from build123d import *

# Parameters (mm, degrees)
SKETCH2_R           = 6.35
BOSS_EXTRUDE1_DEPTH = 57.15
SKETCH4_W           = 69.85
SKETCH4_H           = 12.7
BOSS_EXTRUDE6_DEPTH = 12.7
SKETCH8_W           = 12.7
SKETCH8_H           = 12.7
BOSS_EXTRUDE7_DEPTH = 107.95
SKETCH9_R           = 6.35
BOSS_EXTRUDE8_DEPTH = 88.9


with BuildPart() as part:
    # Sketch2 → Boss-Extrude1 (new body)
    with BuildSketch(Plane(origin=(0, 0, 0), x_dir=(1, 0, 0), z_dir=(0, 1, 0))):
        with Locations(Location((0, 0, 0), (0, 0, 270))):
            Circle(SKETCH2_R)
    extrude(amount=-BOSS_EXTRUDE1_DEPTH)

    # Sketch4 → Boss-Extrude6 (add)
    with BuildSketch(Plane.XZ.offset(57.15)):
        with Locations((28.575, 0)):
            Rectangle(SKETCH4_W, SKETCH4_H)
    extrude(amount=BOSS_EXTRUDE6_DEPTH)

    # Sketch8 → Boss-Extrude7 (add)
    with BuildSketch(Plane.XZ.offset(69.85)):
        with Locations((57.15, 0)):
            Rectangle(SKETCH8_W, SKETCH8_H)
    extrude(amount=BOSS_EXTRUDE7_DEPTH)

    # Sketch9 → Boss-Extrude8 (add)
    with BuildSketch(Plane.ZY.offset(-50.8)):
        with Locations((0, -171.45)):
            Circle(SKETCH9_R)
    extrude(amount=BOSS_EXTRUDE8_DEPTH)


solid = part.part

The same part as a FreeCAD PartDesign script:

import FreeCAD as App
import Part
import Sketcher

V = App.Vector
Q = App.Units.Quantity


def add_polygon(sketch, points):
    """Adds a closed chain of lines whose ends are joined by coincident constraints."""
    first, n = sketch.GeometryCount, len(points)
    for a, b in zip(points, points[1:] + points[:1]):
        sketch.addGeometry(Part.LineSegment(App.Vector(*a, 0), App.Vector(*b, 0)), False)
    for i in range(n):
        sketch.addConstraint(Sketcher.Constraint("Coincident", first + i, 2, first + (i + 1) % n, 1))

doc = App.newDocument("Part")
body = doc.addObject("PartDesign::Body", "Body")

# Sketch on XZ plane
sketch1 = doc.addObject("Sketcher::SketchObject", "Sketch")
body.addObject(sketch1)
sketch1.AttachmentSupport = (doc.XZ_Plane, [""])
sketch1.MapMode = "FlatFace"
sketch1.addGeometry(Part.Circle(V(0, 0, 0), V(0, 0, 1), 6), False)
sketch1.addConstraint(Sketcher.Constraint("Coincident", 0, 3, -1, 1))
sketch1.addConstraint(Sketcher.Constraint("Diameter", 0, Q("0.5 in")))
pad1 = doc.addObject("PartDesign::Pad", "Pad")
body.addObject(pad1)
pad1.Profile = sketch1
pad1.Length = Q("2.25 in")

# Sketch on XZ plane
sketch2 = doc.addObject("Sketcher::SketchObject", "Sketch001")
body.addObject(sketch2)
sketch2.AttachmentSupport = (doc.XZ_Plane, [""])
sketch2.MapMode = "FlatFace"
sketch2.AttachmentOffset = App.Placement(V(0, 0, 2.25 * 25.4), App.Rotation())
add_polygon(sketch2, [(-6, 6), (-6, -6), (64, -6), (64, 6)])  # lines 0-3
sketch2.addConstraint(Sketcher.Constraint("Vertical", 0))
sketch2.addConstraint(Sketcher.Constraint("Horizontal", 1))
sketch2.addConstraint(Sketcher.Constraint("Vertical", 2))
sketch2.addConstraint(Sketcher.Constraint("Horizontal", 3))
sketch2.addConstraint(Sketcher.Constraint("DistanceY", 0, 2, 0, 1, Q("0.5 in")))
sketch2.addConstraint(Sketcher.Constraint("DistanceX", 1, 1, 1, 2, Q("2.75 in")))
sketch2.addConstraint(Sketcher.Constraint("DistanceX", -1, 1, 1, 2, Q("2.5 in")))
sketch2.addConstraint(Sketcher.Constraint("DistanceY", 0, 2, -1, 1, Q("0.25 in")))
pad2 = doc.addObject("PartDesign::Pad", "Pad001")
body.addObject(pad2)
pad2.Profile = sketch2
pad2.Length = Q("0.5 in")

# Sketch on XZ plane
sketch3 = doc.addObject("Sketcher::SketchObject", "Sketch002")
body.addObject(sketch3)
sketch3.AttachmentSupport = (doc.XZ_Plane, [""])
sketch3.MapMode = "FlatFace"
sketch3.AttachmentOffset = App.Placement(V(0, 0, 2.75 * 25.4), App.Rotation())
add_polygon(sketch3, [(51, 6), (51, -6), (64, -6), (64, 6)])  # lines 0-3
sketch3.addConstraint(Sketcher.Constraint("Vertical", 0))
sketch3.addConstraint(Sketcher.Constraint("Horizontal", 1))
sketch3.addConstraint(Sketcher.Constraint("Vertical", 2))
sketch3.addConstraint(Sketcher.Constraint("Horizontal", 3))
sketch3.addConstraint(Sketcher.Constraint("Equal", 3, 0))
sketch3.addConstraint(Sketcher.Constraint("DistanceX", 1, 1, 1, 2, Q("0.5 in")))
sketch3.addConstraint(Sketcher.Constraint("DistanceX", -1, 1, 0, 2, Q("2 in")))
sketch3.addConstraint(Sketcher.Constraint("DistanceY", 0, 2, -1, 1, Q("0.25 in")))
pad3 = doc.addObject("PartDesign::Pad", "Pad002")
body.addObject(pad3)
pad3.Profile = sketch3
pad3.Length = Q("4.25 in")

# Sketch on YZ plane
sketch4 = doc.addObject("Sketcher::SketchObject", "Sketch003")
body.addObject(sketch4)
sketch4.AttachmentSupport = (doc.YZ_Plane, [""])
sketch4.MapMode = "FlatFace"
sketch4.AttachmentOffset = App.Placement(V(0, 0, 2 * 25.4), App.Rotation())
sketch4.addGeometry(Part.Circle(V(-171, 0, 0), V(0, 0, 1), 6), False)
sketch4.addConstraint(Sketcher.Constraint("PointOnObject", 0, 3, -1))
sketch4.addConstraint(Sketcher.Constraint("Diameter", 0, Q("0.5 in")))
sketch4.addConstraint(Sketcher.Constraint("DistanceX", 0, 3, -1, 1, Q("6.75 in")))
pad4 = doc.addObject("PartDesign::Pad", "Pad003")
body.addObject(pad4)
pad4.Profile = sketch4
pad4.Length = Q("3.5 in")
pad4.Reversed = True

doc.recompute()
